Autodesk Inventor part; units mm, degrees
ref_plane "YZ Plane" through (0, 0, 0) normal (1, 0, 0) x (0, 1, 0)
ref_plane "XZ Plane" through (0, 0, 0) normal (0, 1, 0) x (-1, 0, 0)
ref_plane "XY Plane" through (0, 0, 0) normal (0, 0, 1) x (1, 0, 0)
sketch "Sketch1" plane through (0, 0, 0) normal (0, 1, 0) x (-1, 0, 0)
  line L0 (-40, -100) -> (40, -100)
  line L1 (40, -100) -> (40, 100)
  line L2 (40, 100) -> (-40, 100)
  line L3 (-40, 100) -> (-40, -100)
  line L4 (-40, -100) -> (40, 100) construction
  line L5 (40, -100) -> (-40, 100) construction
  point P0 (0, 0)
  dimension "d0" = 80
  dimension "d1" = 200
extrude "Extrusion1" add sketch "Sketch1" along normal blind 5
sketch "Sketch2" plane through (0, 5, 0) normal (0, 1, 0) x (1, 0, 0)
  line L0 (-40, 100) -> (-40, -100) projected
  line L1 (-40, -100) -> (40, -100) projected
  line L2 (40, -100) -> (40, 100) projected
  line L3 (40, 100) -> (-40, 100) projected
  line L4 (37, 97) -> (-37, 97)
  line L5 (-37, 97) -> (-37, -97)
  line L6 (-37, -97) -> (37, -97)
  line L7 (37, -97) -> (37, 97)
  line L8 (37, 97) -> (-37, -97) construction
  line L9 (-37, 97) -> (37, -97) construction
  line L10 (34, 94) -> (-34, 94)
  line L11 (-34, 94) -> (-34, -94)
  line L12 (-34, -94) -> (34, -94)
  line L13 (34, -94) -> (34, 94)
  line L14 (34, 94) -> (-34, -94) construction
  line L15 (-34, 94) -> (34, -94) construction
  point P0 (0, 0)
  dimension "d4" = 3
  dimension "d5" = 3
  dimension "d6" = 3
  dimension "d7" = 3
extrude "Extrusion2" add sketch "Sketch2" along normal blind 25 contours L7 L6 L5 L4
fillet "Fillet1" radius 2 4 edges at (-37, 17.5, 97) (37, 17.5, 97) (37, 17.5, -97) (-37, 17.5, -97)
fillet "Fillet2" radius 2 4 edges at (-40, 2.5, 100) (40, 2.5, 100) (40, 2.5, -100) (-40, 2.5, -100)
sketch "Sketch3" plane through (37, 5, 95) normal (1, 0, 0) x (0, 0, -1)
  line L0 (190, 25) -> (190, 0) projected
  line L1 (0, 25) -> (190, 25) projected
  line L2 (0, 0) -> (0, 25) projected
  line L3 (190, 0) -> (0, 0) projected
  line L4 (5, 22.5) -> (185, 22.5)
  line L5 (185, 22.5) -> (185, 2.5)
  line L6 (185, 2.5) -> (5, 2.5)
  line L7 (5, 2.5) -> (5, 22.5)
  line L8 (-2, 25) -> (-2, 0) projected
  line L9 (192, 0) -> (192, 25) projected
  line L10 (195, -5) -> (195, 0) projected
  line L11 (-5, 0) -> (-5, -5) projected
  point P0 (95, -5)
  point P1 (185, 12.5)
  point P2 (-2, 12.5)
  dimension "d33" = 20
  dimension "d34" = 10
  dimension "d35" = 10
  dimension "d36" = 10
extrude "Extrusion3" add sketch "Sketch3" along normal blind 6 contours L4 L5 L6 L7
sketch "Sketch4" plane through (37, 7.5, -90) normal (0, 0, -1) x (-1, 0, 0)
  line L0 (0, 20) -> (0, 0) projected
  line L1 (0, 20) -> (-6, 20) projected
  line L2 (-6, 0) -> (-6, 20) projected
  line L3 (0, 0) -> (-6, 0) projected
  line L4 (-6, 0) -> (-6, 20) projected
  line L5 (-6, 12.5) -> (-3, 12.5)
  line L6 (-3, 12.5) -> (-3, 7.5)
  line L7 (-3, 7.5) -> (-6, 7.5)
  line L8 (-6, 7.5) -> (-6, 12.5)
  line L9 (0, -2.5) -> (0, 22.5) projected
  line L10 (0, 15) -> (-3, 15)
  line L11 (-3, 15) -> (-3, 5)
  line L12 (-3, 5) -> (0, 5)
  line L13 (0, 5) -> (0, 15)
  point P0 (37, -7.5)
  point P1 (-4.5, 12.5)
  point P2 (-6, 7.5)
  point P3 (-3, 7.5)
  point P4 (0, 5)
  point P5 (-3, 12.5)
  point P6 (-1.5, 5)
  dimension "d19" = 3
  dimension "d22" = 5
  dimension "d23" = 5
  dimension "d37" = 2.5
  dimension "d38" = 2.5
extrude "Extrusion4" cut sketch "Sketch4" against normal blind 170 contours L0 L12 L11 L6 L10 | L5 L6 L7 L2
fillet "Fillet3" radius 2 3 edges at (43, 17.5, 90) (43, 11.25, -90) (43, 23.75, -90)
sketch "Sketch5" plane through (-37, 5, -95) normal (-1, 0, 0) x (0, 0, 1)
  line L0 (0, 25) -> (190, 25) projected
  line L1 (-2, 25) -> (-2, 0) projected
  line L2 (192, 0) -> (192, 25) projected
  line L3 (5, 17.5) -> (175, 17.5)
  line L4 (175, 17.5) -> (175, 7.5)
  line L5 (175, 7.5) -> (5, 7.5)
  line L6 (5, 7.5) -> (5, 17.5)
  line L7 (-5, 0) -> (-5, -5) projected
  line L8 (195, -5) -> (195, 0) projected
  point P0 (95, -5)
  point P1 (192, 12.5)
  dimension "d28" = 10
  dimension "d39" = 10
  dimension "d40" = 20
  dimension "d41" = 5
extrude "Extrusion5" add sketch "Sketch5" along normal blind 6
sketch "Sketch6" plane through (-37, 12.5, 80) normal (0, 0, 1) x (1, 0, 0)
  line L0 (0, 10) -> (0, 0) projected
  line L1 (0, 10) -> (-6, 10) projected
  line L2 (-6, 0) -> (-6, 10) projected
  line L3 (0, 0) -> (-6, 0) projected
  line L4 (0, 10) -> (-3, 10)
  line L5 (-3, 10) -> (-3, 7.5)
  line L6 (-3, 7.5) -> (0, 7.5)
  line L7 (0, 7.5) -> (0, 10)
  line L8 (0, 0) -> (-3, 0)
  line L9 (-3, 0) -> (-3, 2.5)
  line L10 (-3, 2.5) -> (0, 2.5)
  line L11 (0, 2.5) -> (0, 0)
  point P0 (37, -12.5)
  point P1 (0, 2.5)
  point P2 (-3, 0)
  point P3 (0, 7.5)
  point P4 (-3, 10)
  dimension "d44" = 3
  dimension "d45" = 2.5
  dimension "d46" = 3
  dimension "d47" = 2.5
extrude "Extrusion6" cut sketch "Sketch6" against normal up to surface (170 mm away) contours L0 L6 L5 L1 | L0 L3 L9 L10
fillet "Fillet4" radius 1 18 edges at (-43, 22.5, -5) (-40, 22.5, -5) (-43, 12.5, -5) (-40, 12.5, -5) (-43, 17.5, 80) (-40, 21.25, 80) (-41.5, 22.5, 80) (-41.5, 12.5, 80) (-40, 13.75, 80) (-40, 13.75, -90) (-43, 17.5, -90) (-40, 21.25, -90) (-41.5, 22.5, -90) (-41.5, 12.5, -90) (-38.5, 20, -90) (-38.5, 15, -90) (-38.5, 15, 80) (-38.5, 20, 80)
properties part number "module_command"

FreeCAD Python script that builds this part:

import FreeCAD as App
import Part
import Sketcher
from FreeCAD import Vector
Q = App.Units.Quantity


def edges_at(feature, points):
    """Names of the edges that pass closest to the given points."""
    edges = feature.Shape.Edges
    near = lambda p: min(range(len(edges)), key=lambda i: edges[i].distToShape(Part.Vertex(*p))[0])
    return sorted({f"Edge{near(p) + 1}" for p in points})

doc = App.newDocument("Part")
body = doc.addObject("PartDesign::Body", "Body")

# Sketch on XZ plane
sketch1 = doc.addObject("Sketcher::SketchObject", "Sketch")
body.addObject(sketch1)
sketch1.AttachmentSupport = (doc.XZ_Plane, [""])
sketch1.MapMode = "FlatFace"
sketch1.addGeometry([
    Part.LineSegment(Vector(40, 100, 0), Vector(40, -100, 0)),
    Part.LineSegment(Vector(40, -100, 0), Vector(-40, -100, 0)),
    Part.LineSegment(Vector(-40, -100, 0), Vector(-40, 100, 0)),
    Part.LineSegment(Vector(-40, 100, 0), Vector(40, 100, 0)),
], False)
sketch1.addConstraint([
    Sketcher.Constraint("Coincident", 0, 2, 1, 1),
    Sketcher.Constraint("Coincident", 1, 2, 2, 1),
    Sketcher.Constraint("Coincident", 2, 2, 3, 1),
    Sketcher.Constraint("Coincident", 3, 2, 0, 1),
    Sketcher.Constraint("Vertical", 0),
    Sketcher.Constraint("Horizontal", 1),
    Sketcher.Constraint("Vertical", 2),
    Sketcher.Constraint("Horizontal", 3),
    Sketcher.Constraint("Symmetric", 0, 2, 2, 2, -1, 1),
    Sketcher.Constraint("DistanceX", 1, 2, 1, 1, Q("80 mm")),
    Sketcher.Constraint("DistanceY", 0, 2, 0, 1, Q("200 mm")),
])
pad1 = doc.addObject("PartDesign::Pad", "Pad")
body.addObject(pad1)
pad1.Profile = sketch1
pad1.Length = 5
pad1.Reversed = True

# Sketch on XZ plane
sketch2 = doc.addObject("Sketcher::SketchObject", "Sketch001")
body.addObject(sketch2)
sketch2.AttachmentSupport = (doc.XZ_Plane, [""])
sketch2.MapMode = "FlatFace"
sketch2.AttachmentOffset = App.Placement(Vector(0, 0, -5), App.Rotation())
sketch2.addGeometry([
    Part.LineSegment(Vector(37, 97, 0), Vector(37, -97, 0)),  # 0
    Part.LineSegment(Vector(37, -97, 0), Vector(-37, -97, 0)),  # 1
    Part.LineSegment(Vector(-37, -97, 0), Vector(-37, 97, 0)),  # 2
    Part.LineSegment(Vector(-37, 97, 0), Vector(37, 97, 0)),  # 3
    Part.LineSegment(Vector(-34, -94, 0), Vector(34, -94, 0)),  # 4
    Part.LineSegment(Vector(34, -94, 0), Vector(34, 94, 0)),  # 5
    Part.LineSegment(Vector(34, 94, 0), Vector(-34, 94, 0)),  # 6
    Part.LineSegment(Vector(-34, 94, 0), Vector(-34, -94, 0)),  # 7
], False)
sketch2.addConstraint([
    Sketcher.Constraint("Coincident", 0, 2, 1, 1),
    Sketcher.Constraint("Coincident", 1, 2, 2, 1),
    Sketcher.Constraint("Coincident", 2, 2, 3, 1),
    Sketcher.Constraint("Coincident", 3, 2, 0, 1),
    Sketcher.Constraint("Coincident", 4, 2, 5, 1),
    Sketcher.Constraint("Coincident", 5, 2, 6, 1),
    Sketcher.Constraint("Coincident", 6, 2, 7, 1),
    Sketcher.Constraint("Coincident", 7, 2, 4, 1),
    Sketcher.Constraint("Vertical", 0),
    Sketcher.Constraint("Horizontal", 1),
    Sketcher.Constraint("Vertical", 2),
    Sketcher.Constraint("Horizontal", 3),
    Sketcher.Constraint("Horizontal", 4),
    Sketcher.Constraint("Vertical", 5),
    Sketcher.Constraint("Horizontal", 6),
    Sketcher.Constraint("Vertical", 7),
    Sketcher.Constraint("Symmetric", 0, 2, 2, 2, -1, 1),
    Sketcher.Constraint("Symmetric", 4, 2, 6, 2, -1, 1),
    Sketcher.Constraint("DistanceX", 4, 2, 0, 2, Q("3 mm")),
    Sketcher.Constraint("DistanceY", 0, 2, 4, 2, Q("3 mm")),
    Sketcher.Constraint("DistanceX", 1, 2, 1, 1, Q("74 mm")),
    Sketcher.Constraint("DistanceY", 0, 2, 0, 1, Q("194 mm")),
])
pad2 = doc.addObject("PartDesign::Pad", "Pad001")
body.addObject(pad2)
pad2.Profile = sketch2
pad2.Length = 25
pad2.Reversed = True
doc.recompute()

fillet = doc.addObject("PartDesign::Fillet", "Fillet")
body.addObject(fillet)
fillet.Base = (pad2, edges_at(pad2, [
    (-37, 17.5, 97),
    (37, 17.5, 97),
    (37, 17.5, -97),
    (-37, 17.5, -97),
]))
fillet.Radius = 2
doc.recompute()

fillet2 = doc.addObject("PartDesign::Fillet", "Fillet001")
body.addObject(fillet2)
fillet2.Base = (fillet, edges_at(fillet, [
    (-40, 2.5, 100),
    (40, 2.5, 100),
    (40, 2.5, -100),
    (-40, 2.5, -100),
]))
fillet2.Radius = 2

# Sketch on YZ plane
sketch3 = doc.addObject("Sketcher::SketchObject", "Sketch002")
body.addObject(sketch3)
sketch3.AttachmentSupport = (doc.YZ_Plane, [""])
sketch3.MapMode = "FlatFace"
sketch3.AttachmentOffset = App.Placement(Vector(0, 0, 37), App.Rotation())
sketch3.addGeometry([
    Part.LineSegment(Vector(28, -90, 0), Vector(28, 90, 0)),
    Part.LineSegment(Vector(28, 90, 0), Vector(8, 90, 0)),
    Part.LineSegment(Vector(8, 90, 0), Vector(8, -90, 0)),
    Part.LineSegment(Vector(8, -90, 0), Vector(28, -90, 0)),
], False)
sketch3.addConstraint([
    Sketcher.Constraint("Coincident", 0, 2, 1, 1),
    Sketcher.Constraint("Coincident", 1, 2, 2, 1),
    Sketcher.Constraint("Coincident", 2, 2, 3, 1),
    Sketcher.Constraint("Coincident", 3, 2, 0, 1),
    Sketcher.Constraint("Vertical", 0),
    Sketcher.Constraint("Horizontal", 1),
    Sketcher.Constraint("Vertical", 2),
    Sketcher.Constraint("Horizontal", 3),
    Sketcher.Constraint("DistanceX", 1, 2, 1, 1, Q("20 mm")),
    Sketcher.Constraint("DistanceY", 0, 1, 0, 2, Q("180 mm")),
    Sketcher.Constraint("DistanceY", -1, 1, 0, 2, Q("90 mm")),
    Sketcher.Constraint("DistanceX", -1, 1, 0, 2, Q("27.5 mm")),
])
pad3 = doc.addObject("PartDesign::Pad", "Pad002")
body.addObject(pad3)
pad3.Profile = sketch3
pad3.Length = 6

# Sketch on XY plane
sketch4 = doc.addObject("Sketcher::SketchObject", "Sketch003")
body.addObject(sketch4)
sketch4.AttachmentSupport = (doc.XY_Plane, [""])
sketch4.MapMode = "FlatFace"
sketch4.AttachmentOffset = App.Placement(Vector(0, 0, -90), App.Rotation())
sketch4.addGeometry([
    Part.LineSegment(Vector(37, 12.5, 0), Vector(37, 22.5, 0)),  # 0
    Part.LineSegment(Vector(37, 22.5, 0), Vector(40, 22.5, 0)),  # 1
    Part.LineSegment(Vector(40, 22.5, 0), Vector(40, 20, 0)),  # 2
    Part.LineSegment(Vector(40, 20, 0), Vector(43, 20, 0)),  # 3
    Part.LineSegment(Vector(43, 20, 0), Vector(43, 15, 0)),  # 4
    Part.LineSegment(Vector(43, 15, 0), Vector(40, 15, 0)),  # 5
    Part.LineSegment(Vector(40, 15, 0), Vector(40, 12.5, 0)),  # 6
    Part.LineSegment(Vector(40, 12.5, 0), Vector(37, 12.5, 0)),  # 7
], False)
sketch4.addConstraint([
    Sketcher.Constraint("Coincident", 0, 2, 1, 1),
    Sketcher.Constraint("Coincident", 1, 2, 2, 1),
    Sketcher.Constraint("Coincident", 2, 2, 3, 1),
    Sketcher.Constraint("Coincident", 3, 2, 4, 1),
    Sketcher.Constraint("Coincident", 4, 2, 5, 1),
    Sketcher.Constraint("Coincident", 5, 2, 6, 1),
    Sketcher.Constraint("Coincident", 6, 2, 7, 1),
    Sketcher.Constraint("Coincident", 7, 2, 0, 1),
    Sketcher.Constraint("Vertical", 0),
    Sketcher.Constraint("Horizontal", 1),
    Sketcher.Constraint("Vertical", 2),
    Sketcher.Constraint("Horizontal", 3),
    Sketcher.Constraint("Vertical", 4),
    Sketcher.Constraint("Horizontal", 5),
    Sketcher.Constraint("Vertical", 6),
    Sketcher.Constraint("Horizontal", 7),
    Sketcher.Constraint("Vertical", 2, 2, 5, 2),
    Sketcher.Constraint("Equal", 1, 3),
    Sketcher.Constraint("Equal", 2, 6),
    Sketcher.Constraint("DistanceX", 1, 1, 1, 2, Q("3 mm")),
    Sketcher.Constraint("DistanceY", 4, 2, 4, 1, Q("5 mm")),
    Sketcher.Constraint("DistanceY", 2, 2, 2, 1, Q("2.5 mm")),
    Sketcher.Constraint("DistanceX", -1, 1, 0, 2, Q("37 mm")),
    Sketcher.Constraint("DistanceY", -1, 1, 2, 2, Q("20 mm")),
])
pocket1 = doc.addObject("PartDesign::Pocket", "Pocket")
body.addObject(pocket1)
pocket1.Profile = sketch4
pocket1.Length = 170
pocket1.Reversed = True
doc.recompute()

fillet3 = doc.addObject("PartDesign::Fillet", "Fillet002")
body.addObject(fillet3)
fillet3.Base = (pocket1, edges_at(pocket1, [(43, 17.5, 90), (43, 11.25, -90), (43, 23.75, -90)]))
fillet3.Radius = 2

# Sketch on YZ plane
sketch5 = doc.addObject("Sketcher::SketchObject", "Sketch004")
body.addObject(sketch5)
sketch5.AttachmentSupport = (doc.YZ_Plane, [""])
sketch5.MapMode = "FlatFace"
sketch5.AttachmentOffset = App.Placement(Vector(0, 0, -37), App.Rotation())
sketch5.addGeometry([
    Part.LineSegment(Vector(22, 80, 0), Vector(22, -90, 0)),
    Part.LineSegment(Vector(22, -90, 0), Vector(12, -90, 0)),
    Part.LineSegment(Vector(12, -90, 0), Vector(12, 80, 0)),
    Part.LineSegment(Vector(12, 80, 0), Vector(22, 80, 0)),
], False)
sketch5.addConstraint([
    Sketcher.Constraint("Coincident", 0, 2, 1, 1),
    Sketcher.Constraint("Coincident", 1, 2, 2, 1),
    Sketcher.Constraint("Coincident", 2, 2, 3, 1),
    Sketcher.Constraint("Coincident", 3, 2, 0, 1),
    Sketcher.Constraint("Vertical", 0),
    Sketcher.Constraint("Horizontal", 1),
    Sketcher.Constraint("Vertical", 2),
    Sketcher.Constraint("Horizontal", 3),
    Sketcher.Constraint("DistanceX", 1, 2, 1, 1, Q("10 mm")),
    Sketcher.Constraint("DistanceY", 0, 2, 0, 1, Q("170 mm")),
    Sketcher.Constraint("DistanceY", 0, 2, -1, 1, Q("90 mm")),
    Sketcher.Constraint("DistanceX", -1, 1, 0, 2, Q("22.5 mm")),
])
pad4 = doc.addObject("PartDesign::Pad", "Pad003")
body.addObject(pad4)
pad4.Profile = sketch5
pad4.Length = 6
pad4.Reversed = True

# Sketch on XY plane
sketch6 = doc.addObject("Sketcher::SketchObject", "Sketch005")
body.addObject(sketch6)
sketch6.AttachmentSupport = (doc.XY_Plane, [""])
sketch6.MapMode = "FlatFace"
sketch6.AttachmentOffset = App.Placement(Vector(0, 0, 80), App.Rotation())
sketch6.addGeometry([
    Part.LineSegment(Vector(-37, 20, 0), Vector(-37, 22.5, 0)),  # 0
    Part.LineSegment(Vector(-37, 22.5, 0), Vector(-40, 22.5, 0)),  # 1
    Part.LineSegment(Vector(-40, 22.5, 0), Vector(-40, 20, 0)),  # 2
    Part.LineSegment(Vector(-40, 20, 0), Vector(-37, 20, 0)),  # 3
    Part.LineSegment(Vector(-37, 12.5, 0), Vector(-37, 15, 0)),  # 4
    Part.LineSegment(Vector(-37, 15, 0), Vector(-40, 15, 0)),  # 5
    Part.LineSegment(Vector(-40, 15, 0), Vector(-40, 12.5, 0)),  # 6
    Part.LineSegment(Vector(-40, 12.5, 0), Vector(-37, 12.5, 0)),  # 7
], False)
sketch6.addConstraint([
    Sketcher.Constraint("Coincident", 0, 2, 1, 1),
    Sketcher.Constraint("Coincident", 1, 2, 2, 1),
    Sketcher.Constraint("Coincident", 2, 2, 3, 1),
    Sketcher.Constraint("Coincident", 3, 2, 0, 1),
    Sketcher.Constraint("Coincident", 4, 2, 5, 1),
    Sketcher.Constraint("Coincident", 5, 2, 6, 1),
    Sketcher.Constraint("Coincident", 6, 2, 7, 1),
    Sketcher.Constraint("Coincident", 7, 2, 4, 1),
    Sketcher.Constraint("Vertical", 0),
    Sketcher.Constraint("Horizontal", 1),
    Sketcher.Constraint("Vertical", 2),
    Sketcher.Constraint("Horizontal", 3),
    Sketcher.Constraint("Vertical", 4),
    Sketcher.Constraint("Horizontal", 5),
    Sketcher.Constraint("Vertical", 6),
    Sketcher.Constraint("Horizontal", 7),
    Sketcher.Constraint("Vertical", 3, 2, 4, 2),
    Sketcher.Constraint("Vertical", 2, 2, 5, 2),
    Sketcher.Constraint("Equal", 2, 4),
    Sketcher.Constraint("DistanceX", 1, 2, 1, 1, Q("3 mm")),
    Sketcher.Constraint("DistanceY", 0, 1, 0, 2, Q("2.5 mm")),
    Sketcher.Constraint("DistanceX", 0, 2, -1, 1, Q("37 mm")),
    Sketcher.Constraint("DistanceY", -1, 1, 2, 2, Q("20 mm")),
    Sketcher.Constraint("DistanceY", -1, 1, 4, 2, Q("15 mm")),
])
pocket2 = doc.addObject("PartDesign::Pocket", "Pocket001")
body.addObject(pocket2)
pocket2.Profile = sketch6
pocket2.Length = 170
doc.recompute()

fillet4 = doc.addObject("PartDesign::Fillet", "Fillet003")
body.addObject(fillet4)
fillet4.Base = (pocket2, edges_at(pocket2, [
    (-43, 22.5, -5),
    (-40, 22.5, -5),
    (-43, 12.5, -5),
    (-40, 12.5, -5),
    (-43, 17.5, 80),
    (-40, 21.25, 80),
    (-41.5, 22.5, 80),
    (-41.5, 12.5, 80),
    (-40, 13.75, 80),
    (-40, 13.75, -90),
    (-43, 17.5, -90),
    (-40, 21.25, -90),
    (-41.5, 22.5, -90),
    (-41.5, 12.5, -90),
    (-38.5, 20, -90),
    (-38.5, 15, -90),
    (-38.5, 15, 80),
    (-38.5, 20, 80),
]))
fillet4.Radius = 1

doc.recompute()
